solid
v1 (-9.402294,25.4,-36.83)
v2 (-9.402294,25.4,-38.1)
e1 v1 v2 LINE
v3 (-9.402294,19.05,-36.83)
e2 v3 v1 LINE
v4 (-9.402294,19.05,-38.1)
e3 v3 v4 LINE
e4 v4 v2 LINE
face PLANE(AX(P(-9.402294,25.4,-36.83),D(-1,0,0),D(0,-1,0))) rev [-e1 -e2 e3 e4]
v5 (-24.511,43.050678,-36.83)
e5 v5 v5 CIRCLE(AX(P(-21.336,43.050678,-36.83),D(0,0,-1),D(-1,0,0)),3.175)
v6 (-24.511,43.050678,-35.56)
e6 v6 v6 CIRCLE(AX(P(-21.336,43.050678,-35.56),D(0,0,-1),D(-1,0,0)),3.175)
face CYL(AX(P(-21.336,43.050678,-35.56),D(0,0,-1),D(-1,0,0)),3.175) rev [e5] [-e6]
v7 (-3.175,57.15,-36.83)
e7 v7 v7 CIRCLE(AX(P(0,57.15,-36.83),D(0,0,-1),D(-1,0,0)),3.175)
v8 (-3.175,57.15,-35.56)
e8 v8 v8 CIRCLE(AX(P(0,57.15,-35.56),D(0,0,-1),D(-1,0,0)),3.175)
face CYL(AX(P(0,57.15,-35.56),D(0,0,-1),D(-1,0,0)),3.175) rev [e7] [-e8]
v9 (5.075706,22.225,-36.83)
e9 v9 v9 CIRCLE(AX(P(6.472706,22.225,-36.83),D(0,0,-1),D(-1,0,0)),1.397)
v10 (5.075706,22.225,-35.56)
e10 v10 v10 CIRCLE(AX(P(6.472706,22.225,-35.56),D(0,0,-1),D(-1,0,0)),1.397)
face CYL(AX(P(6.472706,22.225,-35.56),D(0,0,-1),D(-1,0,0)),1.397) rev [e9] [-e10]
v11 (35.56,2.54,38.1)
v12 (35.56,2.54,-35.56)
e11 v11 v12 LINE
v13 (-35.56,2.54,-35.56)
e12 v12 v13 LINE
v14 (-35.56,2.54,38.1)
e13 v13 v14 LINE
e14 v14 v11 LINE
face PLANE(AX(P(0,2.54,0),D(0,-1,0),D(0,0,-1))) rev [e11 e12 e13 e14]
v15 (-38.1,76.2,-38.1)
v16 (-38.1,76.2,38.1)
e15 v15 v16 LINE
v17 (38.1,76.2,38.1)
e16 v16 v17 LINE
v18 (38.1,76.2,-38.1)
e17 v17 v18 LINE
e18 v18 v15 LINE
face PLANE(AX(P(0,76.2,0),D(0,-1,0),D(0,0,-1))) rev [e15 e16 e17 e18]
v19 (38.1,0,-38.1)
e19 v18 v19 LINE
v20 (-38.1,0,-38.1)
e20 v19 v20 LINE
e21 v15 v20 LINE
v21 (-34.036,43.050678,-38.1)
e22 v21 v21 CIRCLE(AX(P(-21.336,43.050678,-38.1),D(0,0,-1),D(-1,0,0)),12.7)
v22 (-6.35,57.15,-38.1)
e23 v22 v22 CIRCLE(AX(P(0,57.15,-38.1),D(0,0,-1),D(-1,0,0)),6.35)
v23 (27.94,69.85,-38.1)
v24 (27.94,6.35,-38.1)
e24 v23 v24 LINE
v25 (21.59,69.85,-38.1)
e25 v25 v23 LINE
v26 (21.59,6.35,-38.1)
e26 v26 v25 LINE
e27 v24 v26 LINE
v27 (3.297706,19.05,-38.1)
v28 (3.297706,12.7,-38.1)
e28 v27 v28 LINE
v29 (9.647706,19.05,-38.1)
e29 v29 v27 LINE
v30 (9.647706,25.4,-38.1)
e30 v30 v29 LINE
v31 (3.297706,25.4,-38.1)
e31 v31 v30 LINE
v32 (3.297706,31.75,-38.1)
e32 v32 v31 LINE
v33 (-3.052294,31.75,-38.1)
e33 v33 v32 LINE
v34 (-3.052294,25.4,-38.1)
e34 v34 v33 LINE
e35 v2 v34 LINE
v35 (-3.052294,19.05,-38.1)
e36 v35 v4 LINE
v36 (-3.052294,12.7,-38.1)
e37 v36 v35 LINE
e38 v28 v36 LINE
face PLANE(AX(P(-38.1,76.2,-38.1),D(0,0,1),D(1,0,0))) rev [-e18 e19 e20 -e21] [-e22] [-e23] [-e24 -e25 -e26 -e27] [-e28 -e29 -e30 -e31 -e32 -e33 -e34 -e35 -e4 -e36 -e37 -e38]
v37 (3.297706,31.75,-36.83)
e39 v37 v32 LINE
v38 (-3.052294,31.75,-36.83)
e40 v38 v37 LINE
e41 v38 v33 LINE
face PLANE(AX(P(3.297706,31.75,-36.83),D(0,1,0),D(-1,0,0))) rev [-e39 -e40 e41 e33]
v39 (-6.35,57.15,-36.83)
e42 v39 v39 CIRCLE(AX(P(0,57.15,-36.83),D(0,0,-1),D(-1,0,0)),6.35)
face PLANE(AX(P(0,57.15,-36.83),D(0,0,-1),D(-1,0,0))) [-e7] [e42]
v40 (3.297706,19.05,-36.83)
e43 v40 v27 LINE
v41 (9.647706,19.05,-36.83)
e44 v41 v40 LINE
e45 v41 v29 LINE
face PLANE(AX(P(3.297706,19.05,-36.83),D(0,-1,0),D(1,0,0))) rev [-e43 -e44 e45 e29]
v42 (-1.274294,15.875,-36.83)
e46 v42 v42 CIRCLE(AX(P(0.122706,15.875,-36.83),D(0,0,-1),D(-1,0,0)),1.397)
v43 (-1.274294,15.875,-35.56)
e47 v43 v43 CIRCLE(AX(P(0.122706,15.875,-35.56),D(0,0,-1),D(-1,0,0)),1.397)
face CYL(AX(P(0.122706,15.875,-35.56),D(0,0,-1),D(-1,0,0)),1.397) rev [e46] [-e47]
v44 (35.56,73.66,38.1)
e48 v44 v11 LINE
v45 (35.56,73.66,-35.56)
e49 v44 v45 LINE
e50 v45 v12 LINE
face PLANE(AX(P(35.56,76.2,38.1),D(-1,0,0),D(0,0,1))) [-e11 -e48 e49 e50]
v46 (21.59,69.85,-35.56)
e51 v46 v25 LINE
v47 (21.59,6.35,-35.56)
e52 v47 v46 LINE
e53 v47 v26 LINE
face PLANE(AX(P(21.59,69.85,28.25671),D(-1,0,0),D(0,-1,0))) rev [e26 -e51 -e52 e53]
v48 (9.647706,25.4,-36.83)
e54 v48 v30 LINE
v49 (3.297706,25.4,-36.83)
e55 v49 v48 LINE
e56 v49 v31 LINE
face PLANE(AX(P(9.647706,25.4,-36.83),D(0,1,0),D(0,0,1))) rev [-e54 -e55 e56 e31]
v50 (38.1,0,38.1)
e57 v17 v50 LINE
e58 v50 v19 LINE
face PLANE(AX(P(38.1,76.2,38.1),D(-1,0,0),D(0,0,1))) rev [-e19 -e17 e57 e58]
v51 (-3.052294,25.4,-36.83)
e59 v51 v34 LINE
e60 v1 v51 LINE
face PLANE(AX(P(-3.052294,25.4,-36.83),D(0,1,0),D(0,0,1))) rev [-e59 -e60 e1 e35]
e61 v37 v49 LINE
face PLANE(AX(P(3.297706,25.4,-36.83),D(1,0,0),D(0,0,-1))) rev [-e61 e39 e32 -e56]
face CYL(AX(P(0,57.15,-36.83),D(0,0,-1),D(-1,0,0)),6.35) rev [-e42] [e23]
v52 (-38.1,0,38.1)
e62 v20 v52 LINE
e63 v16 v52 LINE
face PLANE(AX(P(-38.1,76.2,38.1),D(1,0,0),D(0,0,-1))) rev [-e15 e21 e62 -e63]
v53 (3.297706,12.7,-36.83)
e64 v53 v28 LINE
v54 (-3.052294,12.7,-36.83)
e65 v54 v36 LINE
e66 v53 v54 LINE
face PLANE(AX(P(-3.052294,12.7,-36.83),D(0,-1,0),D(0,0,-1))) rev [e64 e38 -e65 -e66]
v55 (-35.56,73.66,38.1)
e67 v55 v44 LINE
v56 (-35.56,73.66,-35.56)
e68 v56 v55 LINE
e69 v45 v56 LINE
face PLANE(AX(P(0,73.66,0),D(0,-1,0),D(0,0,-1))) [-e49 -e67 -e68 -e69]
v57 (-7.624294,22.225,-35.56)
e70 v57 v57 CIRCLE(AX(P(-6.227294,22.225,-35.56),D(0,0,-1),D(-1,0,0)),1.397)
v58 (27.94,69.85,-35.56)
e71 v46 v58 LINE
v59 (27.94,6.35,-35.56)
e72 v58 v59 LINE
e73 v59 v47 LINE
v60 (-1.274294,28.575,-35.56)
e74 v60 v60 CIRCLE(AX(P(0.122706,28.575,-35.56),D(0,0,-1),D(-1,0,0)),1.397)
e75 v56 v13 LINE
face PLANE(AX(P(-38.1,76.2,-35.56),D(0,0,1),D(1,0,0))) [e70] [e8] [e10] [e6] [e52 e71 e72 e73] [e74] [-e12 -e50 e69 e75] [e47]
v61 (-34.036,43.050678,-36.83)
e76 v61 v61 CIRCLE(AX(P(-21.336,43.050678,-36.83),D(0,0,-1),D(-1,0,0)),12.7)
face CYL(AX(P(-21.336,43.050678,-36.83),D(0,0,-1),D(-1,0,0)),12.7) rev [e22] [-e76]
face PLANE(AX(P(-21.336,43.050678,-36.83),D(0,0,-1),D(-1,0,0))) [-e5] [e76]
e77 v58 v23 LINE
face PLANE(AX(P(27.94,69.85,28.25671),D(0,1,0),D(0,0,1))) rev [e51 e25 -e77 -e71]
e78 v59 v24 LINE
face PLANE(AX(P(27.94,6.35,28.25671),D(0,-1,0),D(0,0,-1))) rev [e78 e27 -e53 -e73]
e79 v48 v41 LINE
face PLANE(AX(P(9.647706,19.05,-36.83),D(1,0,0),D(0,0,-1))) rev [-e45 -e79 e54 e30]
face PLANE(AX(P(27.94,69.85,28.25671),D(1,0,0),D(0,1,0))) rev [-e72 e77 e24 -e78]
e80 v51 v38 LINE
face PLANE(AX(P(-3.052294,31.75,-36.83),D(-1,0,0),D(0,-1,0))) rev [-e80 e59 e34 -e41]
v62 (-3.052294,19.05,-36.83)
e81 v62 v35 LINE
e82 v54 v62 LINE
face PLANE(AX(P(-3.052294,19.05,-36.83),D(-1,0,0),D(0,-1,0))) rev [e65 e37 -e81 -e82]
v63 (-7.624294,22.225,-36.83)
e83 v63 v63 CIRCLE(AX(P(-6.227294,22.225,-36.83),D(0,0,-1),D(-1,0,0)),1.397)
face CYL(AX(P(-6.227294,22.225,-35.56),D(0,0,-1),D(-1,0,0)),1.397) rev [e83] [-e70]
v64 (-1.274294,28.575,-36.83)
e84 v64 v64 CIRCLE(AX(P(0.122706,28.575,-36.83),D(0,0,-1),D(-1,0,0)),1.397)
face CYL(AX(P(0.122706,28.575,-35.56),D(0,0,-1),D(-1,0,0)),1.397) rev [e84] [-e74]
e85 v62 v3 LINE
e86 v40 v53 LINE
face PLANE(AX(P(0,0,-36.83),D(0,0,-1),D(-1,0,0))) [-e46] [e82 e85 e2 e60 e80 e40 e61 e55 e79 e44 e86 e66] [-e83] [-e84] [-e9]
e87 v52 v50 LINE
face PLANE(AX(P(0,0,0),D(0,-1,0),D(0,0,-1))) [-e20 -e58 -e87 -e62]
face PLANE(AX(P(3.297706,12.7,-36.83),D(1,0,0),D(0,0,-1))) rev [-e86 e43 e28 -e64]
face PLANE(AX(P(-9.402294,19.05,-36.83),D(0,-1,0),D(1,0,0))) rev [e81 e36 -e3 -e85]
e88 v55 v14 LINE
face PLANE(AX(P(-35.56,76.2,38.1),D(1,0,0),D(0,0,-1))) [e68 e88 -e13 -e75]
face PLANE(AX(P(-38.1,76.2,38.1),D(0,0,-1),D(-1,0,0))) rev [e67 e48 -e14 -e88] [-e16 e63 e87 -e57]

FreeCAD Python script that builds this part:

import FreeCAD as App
import Part
import Sketcher

V = App.Vector
Q = App.Units.Quantity


def faces_at(feature, points):
    """Names of the faces that lie closest to the given points."""
    faces = feature.Shape.Faces
    near = lambda p: min(range(len(faces)), key=lambda i: faces[i].distToShape(Part.Vertex(*p))[0])
    return sorted({f"Face{near(p) + 1}" for p in points})


def add_polygon(sketch, points):
    """Adds a closed chain of lines whose ends are joined by coincident constraints."""
    first, n = sketch.GeometryCount, len(points)
    for a, b in zip(points, points[1:] + points[:1]):
        sketch.addGeometry(Part.LineSegment(App.Vector(*a, 0), App.Vector(*b, 0)), False)
    for i in range(n):
        sketch.addConstraint(Sketcher.Constraint("Coincident", first + i, 2, first + (i + 1) % n, 1))

doc = App.newDocument("Part")
body = doc.addObject("PartDesign::Body", "Body")

sketch1 = body.newObject("Sketcher::SketchObject", "Sketch")
sketch1.AttachmentSupport = (doc.getObject("XZ_Plane"), [""])
sketch1.MapMode = "FlatFace"
add_polygon(sketch1, [(-38, -38), (-38, 38), (38, 38), (38, -38)])
sketch1.addConstraint([
    Sketcher.Constraint("Vertical", 0),
    Sketcher.Constraint("Horizontal", 1),
    Sketcher.Constraint("Vertical", 2),
    Sketcher.Constraint("Horizontal", 3),
    Sketcher.Constraint("Symmetric", 0, 2, 2, 2, -1, 1),
    Sketcher.Constraint("Equal", 3, 0),
    Sketcher.Constraint("DistanceX", 1, 1, 1, 2, Q("3 in")),
])
pad1 = body.newObject("PartDesign::Pad", "Pad")
pad1.Profile = sketch1
pad1.Length = Q("3 in")
pad1.Reversed = True
doc.recompute()

thickness = body.newObject("PartDesign::Thickness", "Thickness")
thickness.Base = (pad1, faces_at(pad1, [(0, 38.1, 38.1)]))
thickness.Value = Q("0.1 in")
thickness.Reversed = True
thickness.Join = "Intersection"

sketch2 = body.newObject("Sketcher::SketchObject", "Sketch001")
sketch2.AttachmentSupport = (doc.getObject("XY_Plane"), [""])
sketch2.MapMode = "FlatFace"
sketch2.AttachmentOffset = App.Placement(V(0, 0, -1.5 * 25.4), App.Rotation())
add_polygon(sketch2, [(28, 70), (28, 6), (22, 6), (22, 70)])
sketch2.addConstraint([
    Sketcher.Constraint("Vertical", 0),
    Sketcher.Constraint("Horizontal", 1),
    Sketcher.Constraint("Vertical", 2),
    Sketcher.Constraint("Horizontal", 3),
    Sketcher.Constraint("DistanceY", 0, 2, 0, 1, Q("2.5 in")),
    Sketcher.Constraint("DistanceX", 1, 2, 1, 1, Q("0.25 in")),
    Sketcher.Constraint("DistanceX", -1, 1, 0, 2, Q("1.1 in")),
    Sketcher.Constraint("DistanceY", -1, 1, 0, 2, Q("0.25 in")),
])
pocket1 = body.newObject("PartDesign::Pocket", "Pocket")
pocket1.Profile = sketch2
pocket1.Length = Q("0.1 in")
pocket1.Reversed = True

sketch3 = body.newObject("Sketcher::SketchObject", "Sketch002")
sketch3.AttachmentSupport = (doc.getObject("XY_Plane"), [""])
sketch3.MapMode = "FlatFace"
sketch3.AttachmentOffset = App.Placement(V(0, 0, -1.5 * 25.4), App.Rotation())
sketch3.addGeometry(Part.Circle(V(0, 57, 0), V(0, 0, 1), 6), False)
sketch3.addConstraint([
    Sketcher.Constraint("PointOnObject", 0, 3, -2),
    Sketcher.Constraint("Diameter", 0, Q("0.5 in")),
    Sketcher.Constraint("DistanceY", -1, 1, 0, 3, Q("2.25 in")),
])
pocket2 = body.newObject("PartDesign::Pocket", "Pocket001")
pocket2.Profile = sketch3
pocket2.Length = Q("0.05 in")
pocket2.Reversed = True

sketch4 = body.newObject("Sketcher::SketchObject", "Sketch003")
sketch4.AttachmentSupport = (doc.getObject("XY_Plane"), [""])
sketch4.MapMode = "FlatFace"
sketch4.AttachmentOffset = App.Placement(V(0, 0, -1.45 * 25.4), App.Rotation())
sketch4.addGeometry(Part.Circle(V(0, 57.1, 0), V(0, 0, 1), 3.2), False)
sketch4.addConstraint([
    Sketcher.Constraint("PointOnObject", 0, 3, -2),
    Sketcher.Constraint("Diameter", 0, Q("0.25 in")),
    Sketcher.Constraint("DistanceY", -1, 1, 0, 3, Q("2.25 in")),
])
pocket3 = body.newObject("PartDesign::Pocket", "Pocket002")
pocket3.Profile = sketch4
pocket3.Length = Q("0.05 in")
pocket3.Reversed = True

sketch5 = body.newObject("Sketcher::SketchObject", "Sketch004")
sketch5.AttachmentSupport = (doc.getObject("XY_Plane"), [""])
sketch5.MapMode = "FlatFace"
sketch5.AttachmentOffset = App.Placement(V(0, 0, -1.5 * 25.4), App.Rotation())
add_polygon(sketch5, [(3, 32), (3, 25), (10, 25), (10, 19), (3, 19), (3, 13), (-3, 13), (-3, 19), (-9, 19), (-9, 25), (-3, 25), (-3, 32)])
sketch5.addConstraint([
    Sketcher.Constraint("Vertical", 0),
    Sketcher.Constraint("Horizontal", 1),
    Sketcher.Constraint("Vertical", 2),
    Sketcher.Constraint("Horizontal", 3),
    Sketcher.Constraint("Vertical", 4),
    Sketcher.Constraint("Horizontal", 5),
    Sketcher.Constraint("Vertical", 6),
    Sketcher.Constraint("Horizontal", 7),
    Sketcher.Constraint("Vertical", 8),
    Sketcher.Constraint("Horizontal", 9),
    Sketcher.Constraint("Vertical", 10),
    Sketcher.Constraint("Horizontal", 11),
    Sketcher.Constraint("Horizontal", 3, 2, 6, 2),
    Sketcher.Constraint("Horizontal", 1, 2, 8, 2),
    Sketcher.Constraint("Vertical", 0, 2, 3, 2),
    Sketcher.Constraint("Vertical", 6, 2, 9, 2),
    Sketcher.Constraint("Equal", 3, 5),
    Sketcher.Constraint("Equal", 5, 7),
    Sketcher.Constraint("Equal", 11, 0),
    Sketcher.Constraint("Equal", 0, 2),
    Sketcher.Constraint("Equal", 2, 4),
    Sketcher.Constraint("DistanceY", -1, 1, 0, 2, Q("1 in")),
    Sketcher.Constraint("DistanceX", 1, 1, 1, 2, Q("0.25 in")),
    Sketcher.Constraint("DistanceX", -1, 1, 0, 2, Q("3.297706 mm")),
])
pocket4 = body.newObject("PartDesign::Pocket", "Pocket003")
pocket4.Profile = sketch5
pocket4.Length = Q("0.05 in")
pocket4.Reversed = True

sketch6 = body.newObject("Sketcher::SketchObject", "Sketch005")
sketch6.AttachmentSupport = (doc.getObject("XY_Plane"), [""])
sketch6.MapMode = "FlatFace"
sketch6.AttachmentOffset = App.Placement(V(0, 0, -1.45 * 25.4), App.Rotation())
sketch6.addGeometry([
    Part.Circle(V(0.1, 28.6, 0), V(0, 0, 1), 1.4),
    Part.Circle(V(-6.2, 22.2, 0), V(0, 0, 1), 1.4),
    Part.Circle(V(0.1, 15.9, 0), V(0, 0, 1), 1.4),
    Part.Circle(V(6.5, 22.2, 0), V(0, 0, 1), 1.4),
], False)
sketch6.addConstraint([
    Sketcher.Constraint("Equal", 0, 1),
    Sketcher.Constraint("Equal", 1, 2),
    Sketcher.Constraint("Equal", 2, 3),
    Sketcher.Constraint("Horizontal", 1, 3, 3, 3),
    Sketcher.Constraint("Vertical", 0, 3, 2, 3),
    Sketcher.Constraint("Diameter", 0, Q("0.11 in")),
    Sketcher.Constraint("DistanceY", 2, 3, 0, 3, Q("0.5 in")),
    Sketcher.Constraint("DistanceX", 1, 3, 3, 3, Q("0.5 in")),
    Sketcher.Constraint("DistanceX", 1, 3, 0, 3, Q("0.25 in")),
    Sketcher.Constraint("DistanceY", 1, 3, 0, 3, Q("0.25 in")),
    Sketcher.Constraint("DistanceY", -1, 1, 0, 3, Q("1.125 in")),
    Sketcher.Constraint("DistanceX", -1, 1, 0, 3, Q("0.122706 mm")),
])
pocket5 = body.newObject("PartDesign::Pocket", "Pocket004")
pocket5.Profile = sketch6
pocket5.Length = Q("0.05 in")
pocket5.Reversed = True

sketch7 = body.newObject("Sketcher::SketchObject", "Sketch006")
sketch7.AttachmentSupport = (doc.getObject("XY_Plane"), [""])
sketch7.MapMode = "FlatFace"
sketch7.AttachmentOffset = App.Placement(V(0, 0, -1.5 * 25.4), App.Rotation())
sketch7.addGeometry(Part.Circle(V(-21, 43, 0), V(0, 0, 1), 13), False)
sketch7.addConstraint([
    Sketcher.Constraint("Diameter", 0, Q("1 in")),
    Sketcher.Constraint("DistanceX", 0, 3, -1, 1, Q("0.84 in")),
    Sketcher.Constraint("DistanceY", -1, 1, 0, 3, Q("43.050678 mm")),
])
pocket6 = body.newObject("PartDesign::Pocket", "Pocket005")
pocket6.Profile = sketch7
pocket6.Length = Q("0.05 in")
pocket6.Reversed = True

sketch8 = body.newObject("Sketcher::SketchObject", "Sketch007")
sketch8.AttachmentSupport = (doc.getObject("XY_Plane"), [""])
sketch8.MapMode = "FlatFace"
sketch8.AttachmentOffset = App.Placement(V(0, 0, -1.45 * 25.4), App.Rotation())
sketch8.addGeometry(Part.Circle(V(-21.3, 43.1, 0), V(0, 0, 1), 3.2), False)
sketch8.addConstraint([
    Sketcher.Constraint("Diameter", 0, Q("0.25 in")),
    Sketcher.Constraint("DistanceX", 0, 3, -1, 1, Q("0.84 in")),
    Sketcher.Constraint("DistanceY", -1, 1, 0, 3, Q("43.050678 mm")),
])
pocket7 = body.newObject("PartDesign::Pocket", "Pocket006")
pocket7.Profile = sketch8
pocket7.Length = Q("0.05 in")
pocket7.Reversed = True

doc.recompute()
